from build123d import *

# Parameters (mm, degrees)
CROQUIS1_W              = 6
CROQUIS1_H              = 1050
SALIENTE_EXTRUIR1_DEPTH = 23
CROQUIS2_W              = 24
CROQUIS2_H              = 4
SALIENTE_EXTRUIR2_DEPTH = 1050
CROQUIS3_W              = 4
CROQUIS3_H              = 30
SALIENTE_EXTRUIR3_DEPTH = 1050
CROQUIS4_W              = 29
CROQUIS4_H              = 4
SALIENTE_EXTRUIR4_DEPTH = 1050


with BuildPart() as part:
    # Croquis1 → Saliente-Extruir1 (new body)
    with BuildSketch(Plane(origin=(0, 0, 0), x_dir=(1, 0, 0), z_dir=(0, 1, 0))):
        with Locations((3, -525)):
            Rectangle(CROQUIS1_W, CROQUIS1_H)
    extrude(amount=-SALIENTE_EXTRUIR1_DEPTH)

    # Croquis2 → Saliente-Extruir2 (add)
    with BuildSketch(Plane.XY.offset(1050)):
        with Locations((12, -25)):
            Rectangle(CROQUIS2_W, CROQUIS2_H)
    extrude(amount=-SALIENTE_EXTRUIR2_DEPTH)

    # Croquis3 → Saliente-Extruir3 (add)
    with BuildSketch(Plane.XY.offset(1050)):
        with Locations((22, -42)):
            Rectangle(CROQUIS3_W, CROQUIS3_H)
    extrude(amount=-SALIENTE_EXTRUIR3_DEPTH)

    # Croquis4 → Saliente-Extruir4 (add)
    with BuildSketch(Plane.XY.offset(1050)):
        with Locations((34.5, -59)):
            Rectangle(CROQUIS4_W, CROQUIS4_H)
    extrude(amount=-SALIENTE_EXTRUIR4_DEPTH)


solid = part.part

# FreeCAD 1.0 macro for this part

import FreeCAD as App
import Part
import Sketcher

V = App.Vector

doc = App.newDocument("Part")
body = doc.addObject("PartDesign::Body", "Body")

# Sketch on XZ plane
sketch1 = body.newObject("Sketcher::SketchObject", "Sketch")
sketch1.AttachmentSupport = (doc.getObject("XZ_Plane"), [""])
sketch1.MapMode = "FlatFace"
sketch1.addGeometry(Part.LineSegment(V(0, 0, 0), V(0, 1050, 0)), False)
sketch1.addGeometry(Part.LineSegment(V(0, 1050, 0), V(6, 1050, 0)), False)
sketch1.addGeometry(Part.LineSegment(V(6, 1050, 0), V(6, 0, 0)), False)
sketch1.addGeometry(Part.LineSegment(V(6, 0, 0), V(0, 0, 0)), False)
sketch1.addConstraint(Sketcher.Constraint("Coincident", 0, 2, 1, 1))
sketch1.addConstraint(Sketcher.Constraint("Coincident", 1, 2, 2, 1))
sketch1.addConstraint(Sketcher.Constraint("Coincident", 2, 2, 3, 1))
sketch1.addConstraint(Sketcher.Constraint("Coincident", 3, 2, 0, 1))
sketch1.addConstraint(Sketcher.Constraint("Vertical", 0))
sketch1.addConstraint(Sketcher.Constraint("Horizontal", 1))
sketch1.addConstraint(Sketcher.Constraint("Vertical", 2))
sketch1.addConstraint(Sketcher.Constraint("Horizontal", 3))
sketch1.addConstraint(Sketcher.Constraint("Coincident", 3, 2, -1, 1))
sketch1.addConstraint(Sketcher.Constraint("DistanceX", 1, 1, 1, 2, 6.0))
sketch1.addConstraint(Sketcher.Constraint("DistanceY", 0, 1, 0, 2, 1050.0))
pad1 = body.newObject("PartDesign::Pad", "Pad")
pad1.Profile = sketch1
pad1.Length = 23

# Sketch on XY plane
sketch2 = body.newObject("Sketcher::SketchObject", "Sketch001")
sketch2.AttachmentSupport = (doc.getObject("XY_Plane"), [""])
sketch2.MapMode = "FlatFace"
sketch2.AttachmentOffset = App.Placement(V(0, 0, 1050), App.Rotation())
sketch2.addGeometry(Part.LineSegment(V(0, -23, 0), V(0, -27, 0)), False)
sketch2.addGeometry(Part.LineSegment(V(0, -27, 0), V(24, -27, 0)), False)
sketch2.addGeometry(Part.LineSegment(V(24, -27, 0), V(24, -23, 0)), False)
sketch2.addGeometry(Part.LineSegment(V(24, -23, 0), V(0, -23, 0)), False)
sketch2.addConstraint(Sketcher.Constraint("Coincident", 0, 2, 1, 1))
sketch2.addConstraint(Sketcher.Constraint("Coincident", 1, 2, 2, 1))
sketch2.addConstraint(Sketcher.Constraint("Coincident", 2, 2, 3, 1))
sketch2.addConstraint(Sketcher.Constraint("Coincident", 3, 2, 0, 1))
sketch2.addConstraint(Sketcher.Constraint("Vertical", 0))
sketch2.addConstraint(Sketcher.Constraint("Horizontal", 1))
sketch2.addConstraint(Sketcher.Constraint("Vertical", 2))
sketch2.addConstraint(Sketcher.Constraint("Horizontal", 3))
sketch2.addConstraint(Sketcher.Constraint("PointOnObject", 0, 2, -2))
sketch2.addConstraint(Sketcher.Constraint("DistanceX", 1, 1, 1, 2, 24.0))
sketch2.addConstraint(Sketcher.Constraint("DistanceY", 0, 2, 0, 1, 4.0))
sketch2.addConstraint(Sketcher.Constraint("DistanceY", 0, 2, -1, 1, 27.0))
pad2 = body.newObject("PartDesign::Pad", "Pad001")
pad2.Profile = sketch2
pad2.Length = 1050
pad2.Reversed = True

# Sketch on XY plane
sketch3 = body.newObject("Sketcher::SketchObject", "Sketch002")
sketch3.AttachmentSupport = (doc.getObject("XY_Plane"), [""])
sketch3.MapMode = "FlatFace"
sketch3.AttachmentOffset = App.Placement(V(0, 0, 1050), App.Rotation())
sketch3.addGeometry(Part.LineSegment(V(20, -27, 0), V(20, -57, 0)), False)
sketch3.addGeometry(Part.LineSegment(V(20, -57, 0), V(24, -57, 0)), False)
sketch3.addGeometry(Part.LineSegment(V(24, -57, 0), V(24, -27, 0)), False)
sketch3.addGeometry(Part.LineSegment(V(24, -27, 0), V(20, -27, 0)), False)
sketch3.addConstraint(Sketcher.Constraint("Coincident", 0, 2, 1, 1))
sketch3.addConstraint(Sketcher.Constraint("Coincident", 1, 2, 2, 1))
sketch3.addConstraint(Sketcher.Constraint("Coincident", 2, 2, 3, 1))
sketch3.addConstraint(Sketcher.Constraint("Coincident", 3, 2, 0, 1))
sketch3.addConstraint(Sketcher.Constraint("Vertical", 0))
sketch3.addConstraint(Sketcher.Constraint("Horizontal", 1))
sketch3.addConstraint(Sketcher.Constraint("Vertical", 2))
sketch3.addConstraint(Sketcher.Constraint("Horizontal", 3))
sketch3.addConstraint(Sketcher.Constraint("DistanceX", 1, 1, 1, 2, 4.0))
sketch3.addConstraint(Sketcher.Constraint("DistanceY", 0, 2, 0, 1, 30.0))
sketch3.addConstraint(Sketcher.Constraint("DistanceX", -1, 1, 0, 2, 20.0))
sketch3.addConstraint(Sketcher.Constraint("DistanceY", 0, 2, -1, 1, 57.0))
pad3 = body.newObject("PartDesign::Pad", "Pad002")
pad3.Profile = sketch3
pad3.Length = 1050
pad3.Reversed = True

# Sketch on XY plane
sketch4 = body.newObject("Sketcher::SketchObject", "Sketch003")
sketch4.AttachmentSupport = (doc.getObject("XY_Plane"), [""])
sketch4.MapMode = "FlatFace"
sketch4.AttachmentOffset = App.Placement(V(0, 0, 1050), App.Rotation())
sketch4.addGeometry(Part.LineSegment(V(20, -57, 0), V(20, -61, 0)), False)
sketch4.addGeometry(Part.LineSegment(V(20, -61, 0), V(49, -61, 0)), False)
sketch4.addGeometry(Part.LineSegment(V(49, -61, 0), V(49, -57, 0)), False)
sketch4.addGeometry(Part.LineSegment(V(49, -57, 0), V(20, -57, 0)), False)
sketch4.addConstraint(Sketcher.Constraint("Coincident", 0, 2, 1, 1))
sketch4.addConstraint(Sketcher.Constraint("Coincident", 1, 2, 2, 1))
sketch4.addConstraint(Sketcher.Constraint("Coincident", 2, 2, 3, 1))
sketch4.addConstraint(Sketcher.Constraint("Coincident", 3, 2, 0, 1))
sketch4.addConstraint(Sketcher.Constraint("Vertical", 0))
sketch4.addConstraint(Sketcher.Constraint("Horizontal", 1))
sketch4.addConstraint(Sketcher.Constraint("Vertical", 2))
sketch4.addConstraint(Sketcher.Constraint("Horizontal", 3))
sketch4.addConstraint(Sketcher.Constraint("DistanceX", 1, 1, 1, 2, 29.0))
sketch4.addConstraint(Sketcher.Constraint("DistanceY", 0, 2, 0, 1, 4.0))
sketch4.addConstraint(Sketcher.Constraint("DistanceX", -1, 1, 0, 2, 20.0))
sketch4.addConstraint(Sketcher.Constraint("DistanceY", 0, 2, -1, 1, 61.0))
pad4 = body.newObject("PartDesign::Pad", "Pad003")
pad4.Profile = sketch4
pad4.Length = 1050
pad4.Reversed = True

doc.recompute()
